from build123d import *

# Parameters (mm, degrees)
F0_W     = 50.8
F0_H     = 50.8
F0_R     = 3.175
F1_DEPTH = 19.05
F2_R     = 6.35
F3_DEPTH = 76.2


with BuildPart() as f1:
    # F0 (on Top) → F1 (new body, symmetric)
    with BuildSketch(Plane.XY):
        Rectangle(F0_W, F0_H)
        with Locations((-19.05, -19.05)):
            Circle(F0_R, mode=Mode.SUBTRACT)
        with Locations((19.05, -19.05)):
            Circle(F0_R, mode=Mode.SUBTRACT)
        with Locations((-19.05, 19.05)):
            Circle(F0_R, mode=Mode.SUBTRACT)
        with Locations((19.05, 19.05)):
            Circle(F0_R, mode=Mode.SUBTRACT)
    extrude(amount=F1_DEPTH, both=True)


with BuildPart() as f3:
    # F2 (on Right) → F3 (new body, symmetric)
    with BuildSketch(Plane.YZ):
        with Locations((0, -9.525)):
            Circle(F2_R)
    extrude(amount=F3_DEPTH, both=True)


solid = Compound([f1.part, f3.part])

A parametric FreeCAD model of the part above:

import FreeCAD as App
import Part
import Sketcher

V = App.Vector
Q = App.Units.Quantity

doc = App.newDocument("Part")
params = doc.addObject("Spreadsheet::Sheet", "Params")
for row, (alias, value) in enumerate([
    ("sketch1_diameter", "0.25 in"),
    ("sketch1_width", "2 in"),
    ("pad1_length", "1.5 in"),
    ("sketch2_diameter", "0.5 in"),
    ("pad2_length", "6 in"),
], start=1):
    params.set(f"A{row}", alias)
    params.set(f"B{row}", "=" + value)
    params.setAlias(f"B{row}", alias)

body = doc.addObject("PartDesign::Body", "Body")

sketch1 = body.newObject("Sketcher::SketchObject", "Sketch")
sketch1.AttachmentSupport = (doc.getObject("XY_Plane"), [""])
sketch1.MapMode = "FlatFace"
sketch1.addGeometry([
    Part.LineSegment(V(-25.4, 25.4, 0), V(-25.4, -25.4, 0)),
    Part.LineSegment(V(-25.4, -25.4, 0), V(25.4, -25.4, 0)),
    Part.LineSegment(V(25.4, -25.4, 0), V(25.4, 25.4, 0)),
    Part.LineSegment(V(25.4, 25.4, 0), V(-25.4, 25.4, 0)),
    Part.Circle(V(-19.05, -19.05, 0), V(0, 0, 1), 3.175),
    Part.Circle(V(19.05, -19.05, 0), V(0, 0, 1), 3.175),
    Part.Circle(V(-19.05, 19.05, 0), V(0, 0, 1), 3.175),
    Part.Circle(V(19.05, 19.05, 0), V(0, 0, 1), 3.175),
], False)
sketch1.addConstraint([
    Sketcher.Constraint("Coincident", 0, 2, 1, 1),
    Sketcher.Constraint("Coincident", 1, 2, 2, 1),
    Sketcher.Constraint("Coincident", 2, 2, 3, 1),
    Sketcher.Constraint("Coincident", 3, 2, 0, 1),
    Sketcher.Constraint("Vertical", 0),
    Sketcher.Constraint("Horizontal", 1),
    Sketcher.Constraint("Vertical", 2),
    Sketcher.Constraint("Horizontal", 3),
    Sketcher.Constraint("Equal", 4, 5),
    Sketcher.Constraint("Equal", 5, 6),
    Sketcher.Constraint("Equal", 6, 7),
    Sketcher.Constraint("Symmetric", 5, 3, 6, 3, -1, 1),
    Sketcher.Constraint("Symmetric", 4, 3, 7, 3, -1, 1),
    Sketcher.Constraint("Symmetric", 0, 2, 2, 2, -1, 1),
    Sketcher.Constraint("Symmetric", 4, 3, 5, 3, -2),
    Sketcher.Constraint("Equal", 3, 0),
    Sketcher.Constraint("Diameter", 4, Q("0.25 in")),
    Sketcher.Constraint("DistanceX", 1, 1, 1, 2, Q("2 in")),
    Sketcher.Constraint("DistanceX", 4, 3, 5, 3, Q("1.5 in")),
    Sketcher.Constraint("DistanceY", 4, 3, 6, 3, Q("1.5 in")),
])
sketch1.setExpression("Constraints[16]", "Params.sketch1_diameter")
sketch1.setExpression("Constraints[17]", "Params.sketch1_width")
pad1 = body.newObject("PartDesign::Pad", "Pad")
pad1.Profile = sketch1
pad1.setExpression("Length", "Params.pad1_length")
pad1.Midplane = True
body2 = doc.addObject("PartDesign::Body", "Body001")

sketch2 = body2.newObject("Sketcher::SketchObject", "Sketch001")
sketch2.AttachmentSupport = (doc.getObject("YZ_Plane001"), [""])
sketch2.MapMode = "FlatFace"
sketch2.addGeometry(Part.Circle(V(0, -9.525, 0), V(0, 0, 1), 6.35), False)
sketch2.addConstraint([
    Sketcher.Constraint("PointOnObject", 0, 3, -2),
    Sketcher.Constraint("Diameter", 0, Q("0.5 in")),
    Sketcher.Constraint("DistanceY", 0, 3, -1, 1, Q("0.375 in")),
])
sketch2.setExpression("Constraints[1]", "Params.sketch2_diameter")
pad2 = body2.newObject("PartDesign::Pad", "Pad001")
pad2.Profile = sketch2
pad2.setExpression("Length", "Params.pad2_length")
pad2.Midplane = True

doc.recompute()
